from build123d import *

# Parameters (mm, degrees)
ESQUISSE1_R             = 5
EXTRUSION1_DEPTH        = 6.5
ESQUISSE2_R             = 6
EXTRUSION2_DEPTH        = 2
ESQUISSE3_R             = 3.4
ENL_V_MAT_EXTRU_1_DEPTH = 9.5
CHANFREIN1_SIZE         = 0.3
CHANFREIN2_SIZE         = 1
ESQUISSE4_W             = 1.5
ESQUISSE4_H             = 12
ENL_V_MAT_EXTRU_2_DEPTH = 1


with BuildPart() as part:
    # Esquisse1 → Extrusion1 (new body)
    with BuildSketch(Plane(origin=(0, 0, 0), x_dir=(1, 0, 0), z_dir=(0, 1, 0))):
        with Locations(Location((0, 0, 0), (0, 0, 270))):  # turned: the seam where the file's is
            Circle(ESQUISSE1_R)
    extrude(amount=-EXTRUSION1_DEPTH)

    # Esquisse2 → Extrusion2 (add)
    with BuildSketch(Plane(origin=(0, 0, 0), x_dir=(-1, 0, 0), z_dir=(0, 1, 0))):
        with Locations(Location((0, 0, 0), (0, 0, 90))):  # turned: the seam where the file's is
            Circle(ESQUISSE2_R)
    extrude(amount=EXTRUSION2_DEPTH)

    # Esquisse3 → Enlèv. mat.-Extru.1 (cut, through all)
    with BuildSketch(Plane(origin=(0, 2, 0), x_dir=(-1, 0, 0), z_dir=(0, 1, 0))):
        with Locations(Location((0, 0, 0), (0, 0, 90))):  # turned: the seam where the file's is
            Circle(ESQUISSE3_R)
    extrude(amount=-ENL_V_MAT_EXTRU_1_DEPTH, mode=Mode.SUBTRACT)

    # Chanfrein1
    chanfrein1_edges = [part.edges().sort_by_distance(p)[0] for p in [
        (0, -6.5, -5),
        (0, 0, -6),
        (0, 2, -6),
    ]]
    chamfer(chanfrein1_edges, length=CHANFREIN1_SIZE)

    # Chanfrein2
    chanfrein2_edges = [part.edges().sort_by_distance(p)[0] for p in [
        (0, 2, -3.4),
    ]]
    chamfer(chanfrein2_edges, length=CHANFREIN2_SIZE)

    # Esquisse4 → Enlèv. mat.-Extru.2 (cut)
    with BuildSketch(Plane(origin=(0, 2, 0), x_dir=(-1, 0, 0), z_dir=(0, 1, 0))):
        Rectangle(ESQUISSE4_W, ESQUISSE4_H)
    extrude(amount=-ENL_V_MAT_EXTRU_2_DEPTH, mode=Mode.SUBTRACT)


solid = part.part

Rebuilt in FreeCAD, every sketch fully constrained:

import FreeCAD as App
import Part
import Sketcher
Q = App.Units.Quantity


def edges_at(feature, points):
    """Names of the edges that pass closest to the given points."""
    edges = feature.Shape.Edges
    near = lambda p: min(range(len(edges)), key=lambda i: edges[i].distToShape(Part.Vertex(*p))[0])
    return sorted({f"Edge{near(p) + 1}" for p in points})

doc = App.newDocument("Part")
body = doc.addObject("PartDesign::Body", "Body")

# Sketch on XZ plane
sketch1 = body.newObject("Sketcher::SketchObject", "Sketch")
sketch1.AttachmentSupport = (doc.getObject("XZ_Plane"), [""])
sketch1.MapMode = "FlatFace"
sketch1.addGeometry(Part.Circle(App.Vector(0, 0, 0), App.Vector(0, 0, 1), 5), False)
sketch1.addConstraint([
    Sketcher.Constraint("Coincident", 0, 3, -1, 1),
    Sketcher.Constraint("Diameter", 0, Q("10 mm")),
])
pad1 = body.newObject("PartDesign::Pad", "Pad")
pad1.Profile = sketch1
pad1.Length = 6.5

# Sketch on XZ plane
sketch2 = body.newObject("Sketcher::SketchObject", "Sketch001")
sketch2.AttachmentSupport = (doc.getObject("XZ_Plane"), [""])
sketch2.MapMode = "FlatFace"
sketch2.addGeometry(Part.Circle(App.Vector(0, 0, 0), App.Vector(0, 0, 1), 6), False)
sketch2.addConstraint([
    Sketcher.Constraint("Coincident", 0, 3, -1, 1),
    Sketcher.Constraint("Diameter", 0, Q("12 mm")),
])
pad2 = body.newObject("PartDesign::Pad", "Pad001")
pad2.Profile = sketch2
pad2.Length = 2
pad2.Reversed = True

# Sketch on XZ plane
sketch3 = body.newObject("Sketcher::SketchObject", "Sketch002")
sketch3.AttachmentSupport = (doc.getObject("XZ_Plane"), [""])
sketch3.MapMode = "FlatFace"
sketch3.AttachmentOffset = App.Placement(App.Vector(0, 0, -2), App.Rotation())
sketch3.addGeometry(Part.Circle(App.Vector(0, 0, 0), App.Vector(0, 0, 1), 3.4), False)
sketch3.addConstraint([
    Sketcher.Constraint("Coincident", 0, 3, -1, 1),
    Sketcher.Constraint("Diameter", 0, Q("6.8 mm")),
])
pocket1 = body.newObject("PartDesign::Pocket", "Pocket")
pocket1.Profile = sketch3
pocket1.Type = "ThroughAll"
pocket1.Reversed = True
doc.recompute()

chamfer = body.newObject("PartDesign::Chamfer", "Chamfer")
chamfer.Base = (pocket1, edges_at(pocket1, [(0, -6.5, -5), (0, 0, -6), (0, 2, -6)]))
chamfer.Size = 0.3
doc.recompute()

chamfer2 = body.newObject("PartDesign::Chamfer", "Chamfer001")
chamfer2.Base = (chamfer, edges_at(chamfer, [(0, 2, -3.4)]))
chamfer2.Size = 1

# Sketch on XZ plane
sketch4 = body.newObject("Sketcher::SketchObject", "Sketch003")
sketch4.AttachmentSupport = (doc.getObject("XZ_Plane"), [""])
sketch4.MapMode = "FlatFace"
sketch4.AttachmentOffset = App.Placement(App.Vector(0, 0, -2), App.Rotation())
sketch4.addGeometry([
    Part.LineSegment(App.Vector(0.8, 6, 0), App.Vector(0.8, -6, 0)),
    Part.LineSegment(App.Vector(0.8, -6, 0), App.Vector(-0.8, -6, 0)),
    Part.LineSegment(App.Vector(-0.8, -6, 0), App.Vector(-0.8, 6, 0)),
    Part.LineSegment(App.Vector(-0.8, 6, 0), App.Vector(0.8, 6, 0)),
], False)
sketch4.addConstraint([
    Sketcher.Constraint("Coincident", 0, 2, 1, 1),
    Sketcher.Constraint("Coincident", 1, 2, 2, 1),
    Sketcher.Constraint("Coincident", 2, 2, 3, 1),
    Sketcher.Constraint("Coincident", 3, 2, 0, 1),
    Sketcher.Constraint("Vertical", 0),
    Sketcher.Constraint("Horizontal", 1),
    Sketcher.Constraint("Vertical", 2),
    Sketcher.Constraint("Horizontal", 3),
    Sketcher.Constraint("Symmetric", 0, 2, 2, 2, -1, 1),
    Sketcher.Constraint("DistanceY", 0, 2, 0, 1, Q("12 mm")),
    Sketcher.Constraint("DistanceX", 1, 2, 1, 1, Q("1.5 mm")),
])
pocket2 = body.newObject("PartDesign::Pocket", "Pocket001")
pocket2.Profile = sketch4
pocket2.Length = 1
pocket2.Reversed = True

doc.recompute()
